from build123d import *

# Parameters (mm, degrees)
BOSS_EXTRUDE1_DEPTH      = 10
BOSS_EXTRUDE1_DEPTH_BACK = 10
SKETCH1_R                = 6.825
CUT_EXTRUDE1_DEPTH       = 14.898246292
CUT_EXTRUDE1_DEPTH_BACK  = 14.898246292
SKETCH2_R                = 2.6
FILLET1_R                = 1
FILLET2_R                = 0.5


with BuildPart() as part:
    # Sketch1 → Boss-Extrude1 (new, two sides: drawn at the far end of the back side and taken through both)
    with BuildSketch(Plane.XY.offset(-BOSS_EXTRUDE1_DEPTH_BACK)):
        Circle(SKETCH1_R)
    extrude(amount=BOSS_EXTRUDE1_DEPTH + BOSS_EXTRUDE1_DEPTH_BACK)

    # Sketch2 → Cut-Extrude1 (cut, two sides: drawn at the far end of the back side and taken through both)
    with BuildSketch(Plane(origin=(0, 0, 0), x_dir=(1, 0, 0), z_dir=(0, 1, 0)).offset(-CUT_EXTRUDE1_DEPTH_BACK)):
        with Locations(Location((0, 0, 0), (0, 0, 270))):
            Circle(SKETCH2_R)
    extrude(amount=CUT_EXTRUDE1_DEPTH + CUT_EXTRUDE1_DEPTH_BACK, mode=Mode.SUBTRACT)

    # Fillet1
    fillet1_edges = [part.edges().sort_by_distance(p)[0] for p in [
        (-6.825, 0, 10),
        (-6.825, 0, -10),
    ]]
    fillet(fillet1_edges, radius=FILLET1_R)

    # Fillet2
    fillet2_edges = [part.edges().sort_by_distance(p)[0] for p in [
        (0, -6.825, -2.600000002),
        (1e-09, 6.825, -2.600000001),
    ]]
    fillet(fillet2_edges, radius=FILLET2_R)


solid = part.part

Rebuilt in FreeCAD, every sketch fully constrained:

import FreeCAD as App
import Part
import Sketcher
from FreeCAD import Vector
Q = App.Units.Quantity


def edges_at(feature, points):
    """Names of the edges that pass closest to the given points."""
    edges = feature.Shape.Edges
    near = lambda p: min(range(len(edges)), key=lambda i: edges[i].distToShape(Part.Vertex(*p))[0])
    return sorted({f"Edge{near(p) + 1}" for p in points})

doc = App.newDocument("Part")
params = doc.addObject("Spreadsheet::Sheet", "Params")
for row, (alias, value) in enumerate([
    ("sketch1_diameter", "13.65 mm"),
    ("pad1_length", "10 mm"),
    ("pad1_length2", "10 mm"),
    ("sketch2_diameter", "5.2 mm"),
    ("fillet_radius", "1 mm"),
    ("fillet2_radius", "0.5 mm"),
], start=1):
    params.set(f"A{row}", alias)
    params.set(f"B{row}", "=" + value)
    params.setAlias(f"B{row}", alias)

body = doc.addObject("PartDesign::Body", "Body")

# Sketch on XY plane
sketch1 = body.newObject("Sketcher::SketchObject", "Sketch")
sketch1.AttachmentSupport = (doc.getObject("XY_Plane"), [""])
sketch1.MapMode = "FlatFace"
sketch1.addGeometry(Part.Circle(Vector(0, 0, 0), Vector(0, 0, 1), 6.825), False)
sketch1.addConstraint(Sketcher.Constraint("Coincident", 0, 3, -1, 1))
sketch1.addConstraint(Sketcher.Constraint("Diameter", 0, Q("13.65 mm")))
sketch1.setExpression("Constraints[1]", "Params.sketch1_diameter")
pad1 = body.newObject("PartDesign::Pad", "Pad")
pad1.Profile = sketch1
pad1.Type = "TwoLengths"
pad1.setExpression("Length", "Params.pad1_length")
pad1.setExpression("Length2", "Params.pad1_length2")

# Sketch on XZ plane
sketch2 = body.newObject("Sketcher::SketchObject", "Sketch001")
sketch2.AttachmentSupport = (doc.getObject("XZ_Plane"), [""])
sketch2.MapMode = "FlatFace"
sketch2.addGeometry(Part.Circle(Vector(0, 0, 0), Vector(0, 0, 1), 2.6), False)
sketch2.addConstraint(Sketcher.Constraint("Coincident", 0, 3, -1, 1))
sketch2.addConstraint(Sketcher.Constraint("Diameter", 0, Q("5.2 mm")))
sketch2.setExpression("Constraints[1]", "Params.sketch2_diameter")
pocket1 = body.newObject("PartDesign::Pocket", "Pocket")
pocket1.Profile = sketch2
pocket1.Type = "ThroughAll"
pocket1.Midplane = True
doc.recompute()

fillet = body.newObject("PartDesign::Fillet", "Fillet")
fillet.Base = (pocket1, edges_at(pocket1, [(-6.825, 0, 10), (-6.825, 0, -10)]))
fillet.setExpression("Radius", "Params.fillet_radius")
doc.recompute()

fillet2 = body.newObject("PartDesign::Fillet", "Fillet001")
fillet2.Base = (fillet, edges_at(fillet, [(0, -6.825, -2.6), (0, 6.825, -2.6)]))
fillet2.setExpression("Radius", "Params.fillet2_radius")

doc.recompute()
